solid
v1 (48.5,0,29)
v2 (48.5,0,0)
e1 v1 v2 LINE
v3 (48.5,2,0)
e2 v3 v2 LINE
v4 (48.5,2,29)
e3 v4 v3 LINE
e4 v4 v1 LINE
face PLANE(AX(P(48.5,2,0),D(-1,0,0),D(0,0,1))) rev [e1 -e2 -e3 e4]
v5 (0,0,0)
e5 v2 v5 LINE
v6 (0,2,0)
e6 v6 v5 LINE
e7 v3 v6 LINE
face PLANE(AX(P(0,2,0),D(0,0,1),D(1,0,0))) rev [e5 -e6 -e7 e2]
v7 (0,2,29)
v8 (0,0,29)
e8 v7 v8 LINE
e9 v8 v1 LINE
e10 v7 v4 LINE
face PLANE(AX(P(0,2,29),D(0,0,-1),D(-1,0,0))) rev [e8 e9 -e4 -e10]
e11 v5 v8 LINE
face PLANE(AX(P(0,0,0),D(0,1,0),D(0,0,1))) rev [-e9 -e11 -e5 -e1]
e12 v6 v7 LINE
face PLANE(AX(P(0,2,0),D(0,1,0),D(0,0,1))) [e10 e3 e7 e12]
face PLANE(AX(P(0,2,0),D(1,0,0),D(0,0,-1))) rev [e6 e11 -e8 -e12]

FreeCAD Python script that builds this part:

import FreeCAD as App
import Part
import Sketcher

V = App.Vector


def add_polygon(sketch, points):
    """Adds a closed chain of lines whose ends are joined by coincident constraints."""
    first, n = sketch.GeometryCount, len(points)
    for a, b in zip(points, points[1:] + points[:1]):
        sketch.addGeometry(Part.LineSegment(App.Vector(*a, 0), App.Vector(*b, 0)), False)
    for i in range(n):
        sketch.addConstraint(Sketcher.Constraint("Coincident", first + i, 2, first + (i + 1) % n, 1))

doc = App.newDocument("Part")
body = doc.addObject("PartDesign::Body", "Body")

sketch1 = body.newObject("Sketcher::SketchObject", "Sketch")
sketch1.AttachmentSupport = (doc.getObject("XZ_Plane"), [""])
sketch1.MapMode = "FlatFace"
add_polygon(sketch1, [(0, 0), (0, 29), (48, 29), (48, 0)])
sketch1.addConstraint([
    Sketcher.Constraint("Vertical", 0),
    Sketcher.Constraint("Horizontal", 1),
    Sketcher.Constraint("Vertical", 2),
    Sketcher.Constraint("Horizontal", 3),
    Sketcher.Constraint("Coincident", 3, 2, -1, 1),
    Sketcher.Constraint("DistanceY", 0, 1, 0, 2, 29.0),
    Sketcher.Constraint("DistanceX", 1, 1, 1, 2, 48.5),
])
pad1 = body.newObject("PartDesign::Pad", "Pad")
pad1.Profile = sketch1
pad1.Length = 2
pad1.Reversed = True

doc.recompute()
